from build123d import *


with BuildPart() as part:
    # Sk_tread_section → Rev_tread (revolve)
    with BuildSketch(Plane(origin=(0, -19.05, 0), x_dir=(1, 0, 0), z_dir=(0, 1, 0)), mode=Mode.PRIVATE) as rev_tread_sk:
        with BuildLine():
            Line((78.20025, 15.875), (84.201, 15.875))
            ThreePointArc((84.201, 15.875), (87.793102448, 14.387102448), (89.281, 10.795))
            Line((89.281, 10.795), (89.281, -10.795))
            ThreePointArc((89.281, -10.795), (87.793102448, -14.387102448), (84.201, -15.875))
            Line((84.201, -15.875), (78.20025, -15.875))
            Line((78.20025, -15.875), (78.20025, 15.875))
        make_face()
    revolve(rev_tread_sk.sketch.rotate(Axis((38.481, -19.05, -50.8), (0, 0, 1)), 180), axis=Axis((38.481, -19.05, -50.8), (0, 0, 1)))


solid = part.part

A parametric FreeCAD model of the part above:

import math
import FreeCAD as App
import Part
import Sketcher
from FreeCAD import Vector
Q = App.Units.Quantity

doc = App.newDocument("Part")
body = doc.addObject("PartDesign::Body", "Body")

sketch1 = body.newObject("Sketcher::SketchObject", "Sketch")
sketch1.AttachmentSupport = (doc.getObject("XZ_Plane"), [""])
sketch1.MapMode = "FlatFace"
sketch1.AttachmentOffset = App.Placement(Vector(0, 0, 0.75 * 25.4), App.Rotation())
sketch1.addGeometry(Part.LineSegment(Vector(84, -16, 0), Vector(78, -16, 0)), False)
sketch1.addGeometry(Part.LineSegment(Vector(78, -16, 0), Vector(78, 16, 0)), False)
sketch1.addGeometry(Part.LineSegment(Vector(78, 16, 0), Vector(84, 16, 0)), False)
sketch1.addGeometry(Part.ArcOfCircle(Part.Circle(Vector(84, 11, 0), Vector(0, 0, 1), 5), math.radians(0), math.radians(90)), False)
sketch1.addGeometry(Part.LineSegment(Vector(89, 11, 0), Vector(89, -11, 0)), False)
sketch1.addGeometry(Part.ArcOfCircle(Part.Circle(Vector(84, -11, 0), Vector(0, 0, 1), 5), math.radians(-90), math.radians(0)), False)
sketch1.addGeometry(Part.LineSegment(Vector(38, -16, 0), Vector(38, 16, 0)), True)
sketch1.addConstraint(Sketcher.Constraint("Coincident", 0, 2, 1, 1))
sketch1.addConstraint(Sketcher.Constraint("Coincident", 1, 2, 2, 1))
sketch1.addConstraint(Sketcher.Constraint("Tangent", 2, 2, 3, 2))
sketch1.addConstraint(Sketcher.Constraint("Tangent", 3, 1, 4, 1))
sketch1.addConstraint(Sketcher.Constraint("Tangent", 4, 2, 5, 2))
sketch1.addConstraint(Sketcher.Constraint("Tangent", 5, 1, 0, 1))
sketch1.addConstraint(Sketcher.Constraint("Horizontal", 0))
sketch1.addConstraint(Sketcher.Constraint("Vertical", 1))
sketch1.addConstraint(Sketcher.Constraint("Horizontal", 2))
sketch1.addConstraint(Sketcher.Constraint("Vertical", 4))
sketch1.addConstraint(Sketcher.Constraint("Vertical", 6))
sketch1.addConstraint(Sketcher.Constraint("Equal", 3, 5))
sketch1.addConstraint(Sketcher.Constraint("Horizontal", 5, 1, 6, 1))
sketch1.addConstraint(Sketcher.Constraint("Horizontal", 2, 2, 6, 2))
sketch1.addConstraint(Sketcher.Constraint("Radius", 3, Q("0.2 in")))
sketch1.addConstraint(Sketcher.Constraint("DistanceX", 6, 1, 4, 2, Q("2 in")))
sketch1.addConstraint(Sketcher.Constraint("DistanceY", 1, 1, 1, 2, Q("1.25 in")))
sketch1.addConstraint(Sketcher.Constraint("DistanceX", -1, 1, 3, 3, Q("3.315 in")))
sketch1.addConstraint(Sketcher.Constraint("DistanceY", -1, 1, 3, 3, Q("0.425 in")))
sketch1.addConstraint(Sketcher.Constraint("DistanceX", 0, 2, 0, 1, Q("6.00075 mm")))
revolution = body.newObject("PartDesign::Revolution", "Revolution")
revolution.Profile = sketch1
revolution.ReferenceAxis = (sketch1, ["Axis0"])
revolution.Angle = 360

doc.recompute()
